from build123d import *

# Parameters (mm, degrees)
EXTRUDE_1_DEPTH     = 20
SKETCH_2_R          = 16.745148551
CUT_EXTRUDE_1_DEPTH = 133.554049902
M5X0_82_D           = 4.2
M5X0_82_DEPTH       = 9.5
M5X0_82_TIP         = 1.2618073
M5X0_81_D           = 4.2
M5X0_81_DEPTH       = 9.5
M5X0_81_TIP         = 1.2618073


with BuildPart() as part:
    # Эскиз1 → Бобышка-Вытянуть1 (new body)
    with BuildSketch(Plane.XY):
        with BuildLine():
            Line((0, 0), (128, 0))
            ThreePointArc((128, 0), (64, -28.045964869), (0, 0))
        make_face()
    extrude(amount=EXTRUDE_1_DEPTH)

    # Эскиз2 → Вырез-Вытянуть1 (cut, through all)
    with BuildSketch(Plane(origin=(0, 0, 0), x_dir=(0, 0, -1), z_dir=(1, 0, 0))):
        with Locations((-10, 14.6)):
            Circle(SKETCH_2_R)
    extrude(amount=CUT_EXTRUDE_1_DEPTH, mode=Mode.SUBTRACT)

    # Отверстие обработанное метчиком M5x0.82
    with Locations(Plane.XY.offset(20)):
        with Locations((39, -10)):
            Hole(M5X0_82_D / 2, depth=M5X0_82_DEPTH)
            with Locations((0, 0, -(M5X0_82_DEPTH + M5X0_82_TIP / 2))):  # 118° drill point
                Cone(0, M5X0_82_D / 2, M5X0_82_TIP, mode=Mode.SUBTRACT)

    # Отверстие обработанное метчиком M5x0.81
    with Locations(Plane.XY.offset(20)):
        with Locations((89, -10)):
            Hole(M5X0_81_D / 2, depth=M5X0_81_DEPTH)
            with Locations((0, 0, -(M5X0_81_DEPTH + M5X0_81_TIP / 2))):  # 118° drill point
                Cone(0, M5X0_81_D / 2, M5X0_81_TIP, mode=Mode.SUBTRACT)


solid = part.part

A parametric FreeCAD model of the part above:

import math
import FreeCAD as App
import Part
import Sketcher
from FreeCAD import Vector
Q = App.Units.Quantity

doc = App.newDocument("Part")
body = doc.addObject("PartDesign::Body", "Body")

# Sketch on XY plane
sketch1 = body.newObject("Sketcher::SketchObject", "Sketch")
sketch1.AttachmentSupport = (doc.getObject("XY_Plane"), [""])
sketch1.MapMode = "FlatFace"
sketch1.addGeometry([
    Part.LineSegment(Vector(128, 0, 0), Vector(0, 0, 0)),
    Part.ArcOfCircle(Part.Circle(Vector(64, 59, 0), Vector(0, 0, 1), 87), math.radians(-137), math.radians(-43)),
], False)
sketch1.addConstraint([
    Sketcher.Constraint("Coincident", 0, 1, 1, 2),
    Sketcher.Constraint("Coincident", 1, 1, 0, 2),
    Sketcher.Constraint("Horizontal", 0),
    Sketcher.Constraint("Coincident", 1, 1, -1, 1),
    Sketcher.Constraint("DistanceX", 0, 2, 0, 1, Q("128 mm")),
    Sketcher.Constraint("DistanceY", -1, 1, 1, 3, Q("59 mm")),
])
pad1 = body.newObject("PartDesign::Pad", "Pad")
pad1.Profile = sketch1
pad1.Length = 20

# Sketch on YZ plane
sketch2 = body.newObject("Sketcher::SketchObject", "Sketch001")
sketch2.AttachmentSupport = (doc.getObject("YZ_Plane"), [""])
sketch2.MapMode = "FlatFace"
sketch2.addGeometry(Part.Circle(Vector(15, 10, 0), Vector(0, 0, 1), 17), False)
sketch2.addConstraint([
    Sketcher.Constraint("DistanceY", -1, 1, 0, 3, Q("10 mm")),
    Sketcher.Constraint("DistanceX", -1, 1, 0, 3, Q("14.6 mm")),
    Sketcher.Constraint("Diameter", 0, Q("33.490297 mm")),
])
pocket1 = body.newObject("PartDesign::Pocket", "Pocket")
pocket1.Profile = sketch2
pocket1.Type = "ThroughAll"
pocket1.Reversed = True

# Sketch on XY plane
sketch3 = body.newObject("Sketcher::SketchObject", "Sketch002")
sketch3.AttachmentSupport = (doc.getObject("XY_Plane"), [""])
sketch3.MapMode = "FlatFace"
sketch3.AttachmentOffset = App.Placement(Vector(0, 0, 20), App.Rotation())
sketch3.addGeometry(Part.Circle(Vector(39, -10, 0), Vector(0, 0, 1), 2.1), False)
sketch3.addConstraint([
    Sketcher.Constraint("Diameter", 0, Q("4.2 mm")),
    Sketcher.Constraint("DistanceX", -1, 1, 0, 3, Q("39 mm")),
    Sketcher.Constraint("DistanceY", 0, 3, -1, 1, Q("10 mm")),
])
doc.recompute()
hole = body.newObject("PartDesign::Hole", "Hole")
hole.Profile = sketch3
hole.ThreadType = "None"
hole.Diameter = 4.2
hole.DepthType = "Dimension"
hole.Depth = 9.5
hole.DrillPoint = "Angled"
hole.DrillPointAngle = 118

# Sketch on XY plane
sketch4 = body.newObject("Sketcher::SketchObject", "Sketch003")
sketch4.AttachmentSupport = (doc.getObject("XY_Plane"), [""])
sketch4.MapMode = "FlatFace"
sketch4.AttachmentOffset = App.Placement(Vector(0, 0, 20), App.Rotation())
sketch4.addGeometry(Part.Circle(Vector(89, -10, 0), Vector(0, 0, 1), 2.1), False)
sketch4.addConstraint([
    Sketcher.Constraint("Diameter", 0, Q("4.2 mm")),
    Sketcher.Constraint("DistanceX", -1, 1, 0, 3, Q("89 mm")),
    Sketcher.Constraint("DistanceY", 0, 3, -1, 1, Q("10 mm")),
])
doc.recompute()
hole2 = body.newObject("PartDesign::Hole", "Hole001")
hole2.Profile = sketch4
hole2.ThreadType = "None"
hole2.Diameter = 4.2
hole2.DepthType = "Dimension"
hole2.Depth = 9.5
hole2.DrillPoint = "Angled"
hole2.DrillPointAngle = 118

doc.recompute()
